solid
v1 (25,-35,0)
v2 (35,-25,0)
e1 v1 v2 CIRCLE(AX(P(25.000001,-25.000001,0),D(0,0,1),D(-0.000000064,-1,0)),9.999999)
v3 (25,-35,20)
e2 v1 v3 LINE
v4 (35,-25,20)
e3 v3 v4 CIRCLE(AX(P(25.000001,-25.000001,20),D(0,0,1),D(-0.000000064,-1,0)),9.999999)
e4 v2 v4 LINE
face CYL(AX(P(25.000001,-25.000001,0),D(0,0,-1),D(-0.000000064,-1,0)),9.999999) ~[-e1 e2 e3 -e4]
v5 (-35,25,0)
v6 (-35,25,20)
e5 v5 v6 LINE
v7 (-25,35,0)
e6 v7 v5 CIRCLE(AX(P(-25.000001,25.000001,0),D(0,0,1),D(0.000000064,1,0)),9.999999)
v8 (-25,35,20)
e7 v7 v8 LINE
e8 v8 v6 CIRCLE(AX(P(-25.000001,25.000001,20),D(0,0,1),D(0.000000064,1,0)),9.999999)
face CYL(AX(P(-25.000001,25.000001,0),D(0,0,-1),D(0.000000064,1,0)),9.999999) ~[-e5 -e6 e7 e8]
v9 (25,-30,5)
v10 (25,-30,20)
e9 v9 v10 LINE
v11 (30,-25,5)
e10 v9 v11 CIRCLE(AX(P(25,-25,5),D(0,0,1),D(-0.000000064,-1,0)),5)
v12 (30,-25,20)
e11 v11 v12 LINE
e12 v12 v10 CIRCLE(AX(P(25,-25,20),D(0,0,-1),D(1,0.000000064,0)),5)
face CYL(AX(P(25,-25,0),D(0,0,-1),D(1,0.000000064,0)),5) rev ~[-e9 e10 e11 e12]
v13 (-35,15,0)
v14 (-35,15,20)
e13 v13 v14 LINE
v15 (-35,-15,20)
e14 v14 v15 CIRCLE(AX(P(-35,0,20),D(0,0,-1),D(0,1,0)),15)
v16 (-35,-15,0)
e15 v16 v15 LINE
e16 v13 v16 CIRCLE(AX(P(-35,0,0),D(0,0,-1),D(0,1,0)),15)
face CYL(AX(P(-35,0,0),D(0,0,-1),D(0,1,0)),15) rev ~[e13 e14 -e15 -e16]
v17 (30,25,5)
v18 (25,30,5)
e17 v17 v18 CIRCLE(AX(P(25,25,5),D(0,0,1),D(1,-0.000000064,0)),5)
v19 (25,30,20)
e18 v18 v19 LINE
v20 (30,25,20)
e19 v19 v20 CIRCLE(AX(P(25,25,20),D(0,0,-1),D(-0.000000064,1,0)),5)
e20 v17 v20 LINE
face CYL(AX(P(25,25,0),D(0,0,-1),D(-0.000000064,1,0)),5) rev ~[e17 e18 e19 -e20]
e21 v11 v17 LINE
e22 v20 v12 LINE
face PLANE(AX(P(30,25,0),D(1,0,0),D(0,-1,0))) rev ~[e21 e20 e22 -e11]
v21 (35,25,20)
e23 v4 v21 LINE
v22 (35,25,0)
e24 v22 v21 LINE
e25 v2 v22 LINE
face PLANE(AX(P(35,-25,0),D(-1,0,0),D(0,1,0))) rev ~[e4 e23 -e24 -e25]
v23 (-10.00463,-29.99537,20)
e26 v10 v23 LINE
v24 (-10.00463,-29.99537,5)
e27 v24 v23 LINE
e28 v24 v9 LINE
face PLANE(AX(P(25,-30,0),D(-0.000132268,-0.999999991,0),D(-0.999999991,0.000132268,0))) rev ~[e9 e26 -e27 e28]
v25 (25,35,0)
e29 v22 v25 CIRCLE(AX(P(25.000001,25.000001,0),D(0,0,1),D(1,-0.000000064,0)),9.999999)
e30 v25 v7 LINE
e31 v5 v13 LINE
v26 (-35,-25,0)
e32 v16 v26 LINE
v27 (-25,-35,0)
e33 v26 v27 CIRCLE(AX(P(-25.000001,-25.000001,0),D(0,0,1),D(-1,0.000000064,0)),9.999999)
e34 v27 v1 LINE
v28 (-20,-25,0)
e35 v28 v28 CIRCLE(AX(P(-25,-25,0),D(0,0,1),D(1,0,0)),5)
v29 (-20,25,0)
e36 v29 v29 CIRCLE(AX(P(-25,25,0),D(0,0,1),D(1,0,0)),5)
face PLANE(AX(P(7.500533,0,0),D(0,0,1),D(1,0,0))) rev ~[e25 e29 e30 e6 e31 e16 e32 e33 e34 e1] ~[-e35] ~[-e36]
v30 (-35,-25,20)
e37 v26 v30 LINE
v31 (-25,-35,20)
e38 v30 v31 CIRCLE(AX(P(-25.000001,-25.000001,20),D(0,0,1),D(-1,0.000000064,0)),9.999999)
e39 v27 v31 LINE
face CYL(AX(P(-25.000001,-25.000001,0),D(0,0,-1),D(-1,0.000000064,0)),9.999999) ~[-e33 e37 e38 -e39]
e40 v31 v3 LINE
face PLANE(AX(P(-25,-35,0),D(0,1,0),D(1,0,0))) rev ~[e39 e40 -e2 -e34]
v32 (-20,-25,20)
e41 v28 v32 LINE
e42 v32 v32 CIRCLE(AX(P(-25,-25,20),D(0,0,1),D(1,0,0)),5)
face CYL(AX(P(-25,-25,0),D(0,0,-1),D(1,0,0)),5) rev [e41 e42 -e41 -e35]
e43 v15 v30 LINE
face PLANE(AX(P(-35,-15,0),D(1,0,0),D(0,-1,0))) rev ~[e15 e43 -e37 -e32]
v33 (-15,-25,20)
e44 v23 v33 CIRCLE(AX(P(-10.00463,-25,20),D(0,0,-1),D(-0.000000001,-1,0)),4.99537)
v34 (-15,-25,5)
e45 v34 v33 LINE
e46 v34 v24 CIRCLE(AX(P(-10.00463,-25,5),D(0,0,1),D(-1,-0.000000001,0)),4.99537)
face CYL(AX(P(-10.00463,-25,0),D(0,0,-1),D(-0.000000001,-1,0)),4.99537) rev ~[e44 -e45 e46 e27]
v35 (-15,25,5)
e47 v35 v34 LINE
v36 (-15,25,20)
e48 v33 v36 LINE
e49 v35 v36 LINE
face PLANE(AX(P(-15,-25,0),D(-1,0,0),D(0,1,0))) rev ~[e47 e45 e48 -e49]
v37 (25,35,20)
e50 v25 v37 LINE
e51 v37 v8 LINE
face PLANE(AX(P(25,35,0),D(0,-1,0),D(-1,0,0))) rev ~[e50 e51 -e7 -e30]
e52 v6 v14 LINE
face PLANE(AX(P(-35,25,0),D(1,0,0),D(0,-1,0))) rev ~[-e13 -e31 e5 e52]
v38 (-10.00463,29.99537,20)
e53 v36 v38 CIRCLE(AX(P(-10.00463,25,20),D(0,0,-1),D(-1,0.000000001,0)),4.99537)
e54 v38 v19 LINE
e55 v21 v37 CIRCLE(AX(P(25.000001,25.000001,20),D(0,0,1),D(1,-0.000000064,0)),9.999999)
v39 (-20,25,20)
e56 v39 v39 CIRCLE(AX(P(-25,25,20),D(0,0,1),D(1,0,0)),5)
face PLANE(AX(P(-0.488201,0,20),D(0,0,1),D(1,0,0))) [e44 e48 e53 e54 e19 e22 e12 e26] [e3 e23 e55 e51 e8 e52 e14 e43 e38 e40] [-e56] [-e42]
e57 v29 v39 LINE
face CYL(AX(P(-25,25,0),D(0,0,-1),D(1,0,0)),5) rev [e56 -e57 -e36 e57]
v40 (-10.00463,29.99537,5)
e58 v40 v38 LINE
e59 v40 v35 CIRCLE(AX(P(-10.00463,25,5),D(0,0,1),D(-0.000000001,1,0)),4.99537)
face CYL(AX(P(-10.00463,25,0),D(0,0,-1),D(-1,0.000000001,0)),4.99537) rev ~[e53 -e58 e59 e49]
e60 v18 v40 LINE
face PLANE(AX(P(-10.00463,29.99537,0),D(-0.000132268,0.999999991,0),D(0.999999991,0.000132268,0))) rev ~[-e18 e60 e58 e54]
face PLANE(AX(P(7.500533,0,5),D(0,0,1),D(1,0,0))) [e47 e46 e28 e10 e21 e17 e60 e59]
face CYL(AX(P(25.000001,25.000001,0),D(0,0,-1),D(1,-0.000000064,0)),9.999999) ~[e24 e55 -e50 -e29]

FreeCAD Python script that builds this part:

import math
import FreeCAD as App
import Part
import Sketcher

doc = App.newDocument("Part")
body = doc.addObject("PartDesign::Body", "Body")

sketch1 = doc.addObject("Sketcher::SketchObject", "Sketch")
body.addObject(sketch1)
sketch1.AttachmentSupport = (doc.XY_Plane, [""])
sketch1.MapMode = "FlatFace"
sketch1.addGeometry([
    Part.LineSegment(App.Vector(-35, -15, 0), App.Vector(-35, -25, 0)),
    Part.ArcOfCircle(Part.Circle(App.Vector(-25, -25, 0), App.Vector(0, 0, 1), 10), math.radians(180), math.radians(270)),
    Part.LineSegment(App.Vector(-25, -35, 0), App.Vector(25, -35, 0)),
    Part.ArcOfCircle(Part.Circle(App.Vector(25, -25, 0), App.Vector(0, 0, 1), 10), math.radians(-90), math.radians(0)),
    Part.LineSegment(App.Vector(35, -25, 0), App.Vector(35, 25, 0)),
    Part.ArcOfCircle(Part.Circle(App.Vector(25, 25, 0), App.Vector(0, 0, 1), 10), math.radians(0), math.radians(90)),
    Part.LineSegment(App.Vector(25, 35, 0), App.Vector(-25, 35, 0)),
    Part.ArcOfCircle(Part.Circle(App.Vector(-25, 25, 0), App.Vector(0, 0, 1), 10), math.radians(90), math.radians(180)),
    Part.LineSegment(App.Vector(-35, 25, 0), App.Vector(-35, 15, 0)),
    Part.ArcOfCircle(Part.Circle(App.Vector(-35, 0, 0), App.Vector(0, 0, 1), 15), math.radians(-90), math.radians(90)),
    Part.Circle(App.Vector(-25, -25, 0), App.Vector(0, 0, 1), 5),
    Part.ArcOfCircle(Part.Circle(App.Vector(-10, -25, 0), App.Vector(0, 0, 1), 5), math.radians(-180), math.radians(-90)),
    Part.LineSegment(App.Vector(-15, -25, 0), App.Vector(-15, 25, 0)),
    Part.ArcOfCircle(Part.Circle(App.Vector(-10, 25, 0), App.Vector(0, 0, 1), 5), math.radians(90), math.radians(180)),
    Part.LineSegment(App.Vector(-10, 30, 0), App.Vector(25, 30, 0)),
    Part.ArcOfCircle(Part.Circle(App.Vector(25, 25, 0), App.Vector(0, 0, 1), 5), math.radians(0), math.radians(90)),
    Part.LineSegment(App.Vector(30, 25, 0), App.Vector(30, -25, 0)),
    Part.ArcOfCircle(Part.Circle(App.Vector(25, -25, 0), App.Vector(0, 0, 1), 5), math.radians(-90), math.radians(0)),
    Part.LineSegment(App.Vector(25, -30, 0), App.Vector(-10, -30, 0)),
    Part.Circle(App.Vector(-25, 25, 0), App.Vector(0, 0, 1), 5),
], False)
sketch1.addConstraint([
    Sketcher.Constraint("Tangent", 0, 2, 1, 1),
    Sketcher.Constraint("Tangent", 1, 2, 2, 1),
    Sketcher.Constraint("Tangent", 2, 2, 3, 1),
    Sketcher.Constraint("Tangent", 3, 2, 4, 1),
    Sketcher.Constraint("Tangent", 4, 2, 5, 1),
    Sketcher.Constraint("Tangent", 5, 2, 6, 1),
    Sketcher.Constraint("Tangent", 6, 2, 7, 1),
    Sketcher.Constraint("Tangent", 7, 2, 8, 1),
    Sketcher.Constraint("Coincident", 8, 2, 9, 2),
    Sketcher.Constraint("Coincident", 9, 1, 0, 1),
    Sketcher.Constraint("Tangent", 11, 1, 12, 1),
    Sketcher.Constraint("Tangent", 12, 2, 13, 2),
    Sketcher.Constraint("Coincident", 13, 1, 14, 1),
    Sketcher.Constraint("Coincident", 14, 2, 15, 2),
    Sketcher.Constraint("Tangent", 15, 1, 16, 1),
    Sketcher.Constraint("Tangent", 16, 2, 17, 2),
    Sketcher.Constraint("Coincident", 17, 1, 18, 1),
    Sketcher.Constraint("Coincident", 18, 2, 11, 2),
    Sketcher.Constraint("Vertical", 0),
    Sketcher.Constraint("Horizontal", 2),
    Sketcher.Constraint("Vertical", 4),
    Sketcher.Constraint("Horizontal", 6),
    Sketcher.Constraint("Vertical", 8),
    Sketcher.Constraint("Vertical", 12),
    Sketcher.Constraint("Vertical", 16),
    Sketcher.Constraint("Coincident", 10, 3, 1, 3),
    Sketcher.Constraint("Coincident", 15, 3, 5, 3),
    Sketcher.Constraint("Coincident", 17, 3, 3, 3),
    Sketcher.Constraint("Coincident", 19, 3, 7, 3),
    Sketcher.Constraint("Equal", 1, 3),
    Sketcher.Constraint("Equal", 3, 5),
    Sketcher.Constraint("Equal", 5, 7),
    Sketcher.Constraint("Equal", 11, 13),
    Sketcher.Constraint("Equal", 10, 15),
    Sketcher.Constraint("Equal", 17, 19),
    Sketcher.Constraint("Symmetric", 1, 3, 5, 3, -1, 1),
    Sketcher.Constraint("Symmetric", 8, 2, 9, 1, -1),
    Sketcher.Constraint("Symmetric", 13, 1, 18, 2, -1),
    Sketcher.Constraint("Horizontal", 10, 3, 11, 3),
    Sketcher.Constraint("Vertical", 9, 3, 0, 2),
    Sketcher.Constraint("Vertical", 11, 3, 13, 1),
    Sketcher.Constraint("Vertical", 5, 2, 14, 2),
    Sketcher.Constraint("Vertical", 14, 2, 17, 1),
    Sketcher.Constraint("Equal", 6, 4),
    Sketcher.Constraint("Diameter", 10, 10.0),
    Sketcher.Constraint("Radius", 1, 9.999999),
    Sketcher.Constraint("Radius", 9, 15.0),
    Sketcher.Constraint("DistanceX", 2, 1, 2, 2, 50.0),
    Sketcher.Constraint("DistanceX", 11, 1, -1, 1, 15.0),
    Sketcher.Constraint("Radius", 11, 4.99537),
])
pad1 = doc.addObject("PartDesign::Pad", "Pad")
body.addObject(pad1)
pad1.Profile = sketch1
pad1.Length = 20

sketch2 = doc.addObject("Sketcher::SketchObject", "Sketch001")
body.addObject(sketch2)
sketch2.AttachmentSupport = (doc.XY_Plane, [""])
sketch2.MapMode = "FlatFace"
sketch2.addGeometry([
    Part.ArcOfCircle(Part.Circle(App.Vector(-10, 25, 0), App.Vector(0, 0, 1), 5), math.radians(90), math.radians(180)),
    Part.LineSegment(App.Vector(-15, 25, 0), App.Vector(-15, -25, 0)),
    Part.ArcOfCircle(Part.Circle(App.Vector(-10, -25, 0), App.Vector(0, 0, 1), 5), math.radians(-180), math.radians(-90)),
    Part.LineSegment(App.Vector(-10, -30, 0), App.Vector(25, -30, 0)),
    Part.ArcOfCircle(Part.Circle(App.Vector(25, -25, 0), App.Vector(0, 0, 1), 5), math.radians(-90), math.radians(0)),
    Part.LineSegment(App.Vector(30, -25, 0), App.Vector(30, 25, 0)),
    Part.ArcOfCircle(Part.Circle(App.Vector(25, 25, 0), App.Vector(0, 0, 1), 5), math.radians(0), math.radians(90)),
    Part.LineSegment(App.Vector(25, 30, 0), App.Vector(-10, 30, 0)),
], False)
sketch2.addConstraint([
    Sketcher.Constraint("Tangent", 0, 2, 1, 1),
    Sketcher.Constraint("Tangent", 1, 2, 2, 1),
    Sketcher.Constraint("Coincident", 2, 2, 3, 1),
    Sketcher.Constraint("Coincident", 3, 2, 4, 1),
    Sketcher.Constraint("Tangent", 4, 2, 5, 1),
    Sketcher.Constraint("Tangent", 5, 2, 6, 1),
    Sketcher.Constraint("Coincident", 6, 2, 7, 1),
    Sketcher.Constraint("Coincident", 7, 2, 0, 1),
    Sketcher.Constraint("Vertical", 1),
    Sketcher.Constraint("Vertical", 5),
    Sketcher.Constraint("Equal", 0, 2),
    Sketcher.Constraint("Equal", 4, 6),
    Sketcher.Constraint("Symmetric", 3, 2, 6, 2, -1),
    Sketcher.Constraint("Symmetric", 2, 2, 7, 2, -1),
    Sketcher.Constraint("Horizontal", 2, 3, 4, 3),
    Sketcher.Constraint("Vertical", 0, 3, 2, 2),
    Sketcher.Constraint("Vertical", 6, 3, 3, 2),
    Sketcher.Constraint("Radius", 4, 5.0),
    Sketcher.Constraint("DistanceY", 1, 2, 1, 1, 50.0),
    Sketcher.Constraint("DistanceX", -1, 1, 4, 3, 25.0),
    Sketcher.Constraint("DistanceX", 0, 2, -1, 1, 15.0),
    Sketcher.Constraint("Radius", 0, 4.99537),
])
pad2 = doc.addObject("PartDesign::Pad", "Pad001")
body.addObject(pad2)
pad2.Profile = sketch2
pad2.Length = 5

doc.recompute()
